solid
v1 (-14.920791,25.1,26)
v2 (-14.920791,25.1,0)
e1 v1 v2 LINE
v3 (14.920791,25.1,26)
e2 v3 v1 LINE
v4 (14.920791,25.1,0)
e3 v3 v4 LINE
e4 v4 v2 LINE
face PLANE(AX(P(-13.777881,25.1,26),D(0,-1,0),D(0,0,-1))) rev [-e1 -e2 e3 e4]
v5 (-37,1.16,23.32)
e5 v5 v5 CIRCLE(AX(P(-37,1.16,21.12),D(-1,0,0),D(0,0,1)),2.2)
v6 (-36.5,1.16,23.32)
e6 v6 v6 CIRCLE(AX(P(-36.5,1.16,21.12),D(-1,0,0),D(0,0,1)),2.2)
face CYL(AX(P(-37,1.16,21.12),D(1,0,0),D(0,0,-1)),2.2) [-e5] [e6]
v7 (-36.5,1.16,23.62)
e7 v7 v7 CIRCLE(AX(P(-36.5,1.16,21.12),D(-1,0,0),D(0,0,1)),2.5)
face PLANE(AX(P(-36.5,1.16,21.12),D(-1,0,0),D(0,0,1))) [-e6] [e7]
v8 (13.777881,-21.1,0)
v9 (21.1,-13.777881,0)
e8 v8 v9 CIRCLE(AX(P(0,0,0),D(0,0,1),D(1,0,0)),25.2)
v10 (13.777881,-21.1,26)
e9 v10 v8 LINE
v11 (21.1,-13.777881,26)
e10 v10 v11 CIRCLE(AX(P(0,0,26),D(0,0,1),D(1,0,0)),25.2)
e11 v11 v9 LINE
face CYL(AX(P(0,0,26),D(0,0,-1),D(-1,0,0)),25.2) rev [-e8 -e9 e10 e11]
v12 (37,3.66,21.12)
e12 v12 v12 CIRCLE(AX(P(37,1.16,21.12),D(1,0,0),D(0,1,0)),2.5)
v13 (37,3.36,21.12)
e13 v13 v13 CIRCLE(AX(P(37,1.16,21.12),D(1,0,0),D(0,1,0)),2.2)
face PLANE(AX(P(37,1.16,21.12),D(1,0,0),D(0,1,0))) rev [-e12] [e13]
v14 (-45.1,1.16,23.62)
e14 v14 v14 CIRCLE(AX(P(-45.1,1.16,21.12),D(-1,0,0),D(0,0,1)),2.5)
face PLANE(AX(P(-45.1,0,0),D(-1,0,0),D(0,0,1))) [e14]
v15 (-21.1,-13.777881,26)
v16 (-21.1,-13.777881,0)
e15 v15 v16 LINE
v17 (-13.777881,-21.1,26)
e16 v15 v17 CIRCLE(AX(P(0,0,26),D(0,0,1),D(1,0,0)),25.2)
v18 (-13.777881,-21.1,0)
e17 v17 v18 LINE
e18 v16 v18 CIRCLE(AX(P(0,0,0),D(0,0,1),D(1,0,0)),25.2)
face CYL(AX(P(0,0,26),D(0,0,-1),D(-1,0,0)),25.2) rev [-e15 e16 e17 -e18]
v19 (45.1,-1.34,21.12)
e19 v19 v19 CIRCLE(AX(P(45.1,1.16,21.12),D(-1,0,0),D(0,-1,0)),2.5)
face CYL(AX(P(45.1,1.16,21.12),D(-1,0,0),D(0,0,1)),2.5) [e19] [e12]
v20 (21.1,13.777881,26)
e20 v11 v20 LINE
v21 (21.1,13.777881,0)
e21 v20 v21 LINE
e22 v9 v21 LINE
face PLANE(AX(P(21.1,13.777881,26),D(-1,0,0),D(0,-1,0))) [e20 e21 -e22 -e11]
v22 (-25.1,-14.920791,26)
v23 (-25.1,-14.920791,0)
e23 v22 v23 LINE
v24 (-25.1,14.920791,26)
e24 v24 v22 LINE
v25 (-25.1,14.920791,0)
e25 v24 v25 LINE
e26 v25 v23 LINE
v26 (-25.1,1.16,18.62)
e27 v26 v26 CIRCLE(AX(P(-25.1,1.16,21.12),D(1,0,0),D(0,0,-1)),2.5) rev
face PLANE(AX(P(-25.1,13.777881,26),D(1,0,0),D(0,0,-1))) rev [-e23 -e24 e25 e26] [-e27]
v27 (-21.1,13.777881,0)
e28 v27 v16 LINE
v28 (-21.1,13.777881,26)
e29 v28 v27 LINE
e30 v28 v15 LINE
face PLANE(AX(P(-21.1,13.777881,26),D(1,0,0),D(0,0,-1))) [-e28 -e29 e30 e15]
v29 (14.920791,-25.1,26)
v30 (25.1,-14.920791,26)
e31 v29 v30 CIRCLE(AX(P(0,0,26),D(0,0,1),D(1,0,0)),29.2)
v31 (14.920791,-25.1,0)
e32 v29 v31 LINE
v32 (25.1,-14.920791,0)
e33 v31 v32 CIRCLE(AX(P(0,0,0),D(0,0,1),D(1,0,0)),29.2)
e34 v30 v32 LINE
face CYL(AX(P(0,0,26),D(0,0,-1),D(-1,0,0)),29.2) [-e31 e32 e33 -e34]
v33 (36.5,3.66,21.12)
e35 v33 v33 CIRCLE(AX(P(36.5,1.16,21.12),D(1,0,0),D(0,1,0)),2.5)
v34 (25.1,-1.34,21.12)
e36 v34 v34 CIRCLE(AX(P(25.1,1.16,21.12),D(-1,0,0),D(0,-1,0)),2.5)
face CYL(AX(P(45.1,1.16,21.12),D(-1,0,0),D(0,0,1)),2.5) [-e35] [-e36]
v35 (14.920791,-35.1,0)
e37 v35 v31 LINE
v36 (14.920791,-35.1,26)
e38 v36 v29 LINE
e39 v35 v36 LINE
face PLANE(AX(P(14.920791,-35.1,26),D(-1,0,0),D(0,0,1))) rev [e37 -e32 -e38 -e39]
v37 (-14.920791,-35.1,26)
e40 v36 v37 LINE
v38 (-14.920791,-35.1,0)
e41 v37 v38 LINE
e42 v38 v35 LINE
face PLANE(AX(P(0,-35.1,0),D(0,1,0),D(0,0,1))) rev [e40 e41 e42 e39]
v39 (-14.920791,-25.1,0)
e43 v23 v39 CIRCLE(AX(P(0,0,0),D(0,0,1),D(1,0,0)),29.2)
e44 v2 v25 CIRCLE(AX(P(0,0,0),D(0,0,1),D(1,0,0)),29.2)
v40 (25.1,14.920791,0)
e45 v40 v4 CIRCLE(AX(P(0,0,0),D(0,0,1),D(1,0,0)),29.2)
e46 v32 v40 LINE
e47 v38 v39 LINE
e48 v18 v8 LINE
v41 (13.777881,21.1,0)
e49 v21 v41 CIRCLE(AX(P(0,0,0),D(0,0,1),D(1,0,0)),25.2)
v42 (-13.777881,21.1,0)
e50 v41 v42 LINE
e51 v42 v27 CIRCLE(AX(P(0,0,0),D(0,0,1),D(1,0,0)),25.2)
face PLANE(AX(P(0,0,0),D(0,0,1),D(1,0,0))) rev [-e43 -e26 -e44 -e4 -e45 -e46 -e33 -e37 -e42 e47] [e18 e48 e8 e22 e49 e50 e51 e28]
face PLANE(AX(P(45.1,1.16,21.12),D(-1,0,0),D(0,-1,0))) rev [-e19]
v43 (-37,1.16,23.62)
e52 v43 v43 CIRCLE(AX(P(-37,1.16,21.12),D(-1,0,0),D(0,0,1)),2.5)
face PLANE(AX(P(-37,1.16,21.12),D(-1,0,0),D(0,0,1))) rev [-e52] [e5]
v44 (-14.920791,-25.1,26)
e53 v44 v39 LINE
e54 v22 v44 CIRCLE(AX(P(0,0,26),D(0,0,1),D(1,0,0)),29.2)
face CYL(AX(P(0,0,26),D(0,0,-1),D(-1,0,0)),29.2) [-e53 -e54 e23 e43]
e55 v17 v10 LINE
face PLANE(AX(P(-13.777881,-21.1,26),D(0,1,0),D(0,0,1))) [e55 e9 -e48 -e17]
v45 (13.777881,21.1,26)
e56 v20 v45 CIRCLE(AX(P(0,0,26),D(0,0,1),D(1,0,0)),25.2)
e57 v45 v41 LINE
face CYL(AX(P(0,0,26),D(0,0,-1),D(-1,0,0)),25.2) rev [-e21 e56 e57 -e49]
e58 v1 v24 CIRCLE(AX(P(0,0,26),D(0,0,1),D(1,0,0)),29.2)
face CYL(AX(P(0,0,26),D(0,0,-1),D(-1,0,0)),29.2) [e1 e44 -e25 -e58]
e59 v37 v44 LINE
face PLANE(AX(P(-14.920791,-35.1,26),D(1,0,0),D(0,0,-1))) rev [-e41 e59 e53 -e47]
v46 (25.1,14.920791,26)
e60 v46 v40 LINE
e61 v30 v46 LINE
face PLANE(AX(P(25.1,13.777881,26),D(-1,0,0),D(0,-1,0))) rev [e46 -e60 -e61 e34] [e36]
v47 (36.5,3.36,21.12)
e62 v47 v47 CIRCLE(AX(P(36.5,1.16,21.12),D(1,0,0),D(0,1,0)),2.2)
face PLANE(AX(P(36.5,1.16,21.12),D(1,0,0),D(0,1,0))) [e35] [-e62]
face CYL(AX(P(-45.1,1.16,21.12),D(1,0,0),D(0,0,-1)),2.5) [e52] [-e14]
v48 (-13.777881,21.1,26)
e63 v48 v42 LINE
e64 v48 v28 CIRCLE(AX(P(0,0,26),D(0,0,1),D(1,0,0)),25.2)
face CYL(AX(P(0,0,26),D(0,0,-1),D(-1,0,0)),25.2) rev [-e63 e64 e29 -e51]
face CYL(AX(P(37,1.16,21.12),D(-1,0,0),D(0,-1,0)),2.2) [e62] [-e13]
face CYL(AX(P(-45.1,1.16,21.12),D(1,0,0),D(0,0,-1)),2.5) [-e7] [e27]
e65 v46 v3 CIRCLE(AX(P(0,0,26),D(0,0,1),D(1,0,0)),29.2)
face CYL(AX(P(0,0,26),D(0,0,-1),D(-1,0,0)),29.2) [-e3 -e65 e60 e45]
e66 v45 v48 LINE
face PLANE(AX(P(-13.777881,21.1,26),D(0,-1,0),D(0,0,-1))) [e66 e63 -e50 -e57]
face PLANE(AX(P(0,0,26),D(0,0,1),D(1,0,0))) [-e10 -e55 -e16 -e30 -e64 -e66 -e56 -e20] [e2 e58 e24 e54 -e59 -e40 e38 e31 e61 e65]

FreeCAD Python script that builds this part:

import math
import FreeCAD as App
import Part
import Sketcher
from FreeCAD import Vector


def add_polygon(sketch, points):
    """Adds a closed chain of lines whose ends are joined by coincident constraints."""
    first, n = sketch.GeometryCount, len(points)
    for a, b in zip(points, points[1:] + points[:1]):
        sketch.addGeometry(Part.LineSegment(App.Vector(*a, 0), App.Vector(*b, 0)), False)
    for i in range(n):
        sketch.addConstraint(Sketcher.Constraint("Coincident", first + i, 2, first + (i + 1) % n, 1))

doc = App.newDocument("Part")
body = doc.addObject("PartDesign::Body", "Body")

# Sketch on XY plane
sketch1 = doc.addObject("Sketcher::SketchObject", "Sketch")
body.addObject(sketch1)
sketch1.AttachmentSupport = (doc.XY_Plane, [""])
sketch1.MapMode = "FlatFace"
sketch1.addGeometry([
    Part.LineSegment(Vector(-25, 15, 0), Vector(-25, -15, 0)),  # 0
    Part.ArcOfCircle(Part.Circle(Vector(0, 0, 0), Vector(0, 0, 1), 29), math.radians(-149), math.radians(-121)),  # 1
    Part.LineSegment(Vector(-15, -25, 0), Vector(15, -25, 0)),  # 2
    Part.ArcOfCircle(Part.Circle(Vector(0, 0, 0), Vector(0, 0, 1), 29), math.radians(-59), math.radians(-31)),  # 3
    Part.LineSegment(Vector(25, -15, 0), Vector(25, 15, 0)),  # 4
    Part.ArcOfCircle(Part.Circle(Vector(0, 0, 0), Vector(0, 0, 1), 29), math.radians(31), math.radians(59)),  # 5
    Part.LineSegment(Vector(15, 25, 0), Vector(-15, 25, 0)),  # 6
    Part.ArcOfCircle(Part.Circle(Vector(0, 0, 0), Vector(0, 0, 1), 29), math.radians(121), math.radians(149)),  # 7
    Part.LineSegment(Vector(-21, -14, 0), Vector(-21, 14, 0)),  # 8
    Part.ArcOfCircle(Part.Circle(Vector(0, 0, 0), Vector(0, 0, 1), 25), math.radians(123), math.radians(147)),  # 9
    Part.LineSegment(Vector(-14, 21, 0), Vector(14, 21, 0)),  # 10
    Part.ArcOfCircle(Part.Circle(Vector(0, 0, 0), Vector(0, 0, 1), 25), math.radians(33), math.radians(57)),  # 11
    Part.LineSegment(Vector(21, 14, 0), Vector(21, -14, 0)),  # 12
    Part.ArcOfCircle(Part.Circle(Vector(0, 0, 0), Vector(0, 0, 1), 25), math.radians(-57), math.radians(-33)),  # 13
    Part.LineSegment(Vector(14, -21, 0), Vector(-14, -21, 0)),  # 14
    Part.ArcOfCircle(Part.Circle(Vector(0, 0, 0), Vector(0, 0, 1), 25), math.radians(-147), math.radians(-123)),  # 15
], False)
sketch1.addConstraint([
    Sketcher.Constraint("Coincident", 0, 2, 1, 1),
    Sketcher.Constraint("Coincident", 1, 2, 2, 1),
    Sketcher.Constraint("Coincident", 2, 2, 3, 1),
    Sketcher.Constraint("Coincident", 3, 2, 4, 1),
    Sketcher.Constraint("Coincident", 4, 2, 5, 1),
    Sketcher.Constraint("Coincident", 5, 2, 6, 1),
    Sketcher.Constraint("Coincident", 6, 2, 7, 1),
    Sketcher.Constraint("Coincident", 7, 2, 0, 1),
    Sketcher.Constraint("Coincident", 8, 2, 9, 2),
    Sketcher.Constraint("Coincident", 9, 1, 10, 1),
    Sketcher.Constraint("Coincident", 10, 2, 11, 2),
    Sketcher.Constraint("Coincident", 11, 1, 12, 1),
    Sketcher.Constraint("Coincident", 12, 2, 13, 2),
    Sketcher.Constraint("Coincident", 13, 1, 14, 1),
    Sketcher.Constraint("Coincident", 14, 2, 15, 2),
    Sketcher.Constraint("Coincident", 15, 1, 8, 1),
    Sketcher.Constraint("Vertical", 0),
    Sketcher.Constraint("Horizontal", 2),
    Sketcher.Constraint("Vertical", 4),
    Sketcher.Constraint("Horizontal", 6),
    Sketcher.Constraint("Vertical", 8),
    Sketcher.Constraint("Horizontal", 10),
    Sketcher.Constraint("Vertical", 12),
    Sketcher.Constraint("Horizontal", 14),
    Sketcher.Constraint("Coincident", 1, 3, -1, 1),
    Sketcher.Constraint("Coincident", 3, 3, -1, 1),
    Sketcher.Constraint("Coincident", 5, 3, -1, 1),
    Sketcher.Constraint("Coincident", 7, 3, -1, 1),
    Sketcher.Constraint("Coincident", 9, 3, -1, 1),
    Sketcher.Constraint("Coincident", 11, 3, -1, 1),
    Sketcher.Constraint("Coincident", 13, 3, -1, 1),
    Sketcher.Constraint("Coincident", 15, 3, -1, 1),
    Sketcher.Constraint("Equal", 1, 3),
    Sketcher.Constraint("Equal", 3, 5),
    Sketcher.Constraint("Equal", 5, 7),
    Sketcher.Constraint("Equal", 9, 11),
    Sketcher.Constraint("Equal", 11, 13),
    Sketcher.Constraint("Equal", 13, 15),
    Sketcher.Constraint("Horizontal", 0, 2, 3, 2),
    Sketcher.Constraint("Horizontal", 8, 2, 11, 1),
    Sketcher.Constraint("Vertical", 2, 2, 5, 2),
    Sketcher.Constraint("Vertical", 10, 2, 13, 1),
    Sketcher.Constraint("Equal", 6, 0),
    Sketcher.Constraint("Equal", 14, 8),
    Sketcher.Constraint("Radius", 1, 29.2),
    Sketcher.Constraint("Radius", 9, 25.2),
    Sketcher.Constraint("DistanceX", 7, 2, 8, 2, 4.0),
    Sketcher.Constraint("DistanceX", 0, 2, -1, 1, 25.1),
])
pad1 = doc.addObject("PartDesign::Pad", "Pad")
body.addObject(pad1)
pad1.Profile = sketch1
pad1.Length = 26

# Sketch on YZ plane
sketch2 = doc.addObject("Sketcher::SketchObject", "Sketch001")
body.addObject(sketch2)
sketch2.AttachmentSupport = (doc.YZ_Plane, [""])
sketch2.MapMode = "FlatFace"
sketch2.AttachmentOffset = App.Placement(Vector(0, 0, -25.1), App.Rotation())
sketch2.addGeometry(Part.Circle(Vector(1.2, 21.1, 0), Vector(0, 0, 1), 2.5), False)
sketch2.addConstraint([
    Sketcher.Constraint("Diameter", 0, 5.0),
    Sketcher.Constraint("DistanceX", -1, 1, 0, 3, 1.16),
    Sketcher.Constraint("DistanceY", -1, 1, 0, 3, 21.12),
])
pad2 = doc.addObject("PartDesign::Pad", "Pad001")
body.addObject(pad2)
pad2.Profile = sketch2
pad2.Length = 20
pad2.Reversed = True

# Sketch on YZ plane
sketch3 = doc.addObject("Sketcher::SketchObject", "Sketch002")
body.addObject(sketch3)
sketch3.AttachmentSupport = (doc.YZ_Plane, [""])
sketch3.MapMode = "FlatFace"
sketch3.AttachmentOffset = App.Placement(Vector(0, 0, 25.1), App.Rotation())
sketch3.addGeometry(Part.Circle(Vector(1.2, 21.1, 0), Vector(0, 0, 1), 2.5), False)
sketch3.addConstraint([
    Sketcher.Constraint("Diameter", 0, 5.0),
    Sketcher.Constraint("DistanceX", -1, 1, 0, 3, 1.16),
    Sketcher.Constraint("DistanceY", -1, 1, 0, 3, 21.12),
])
pad3 = doc.addObject("PartDesign::Pad", "Pad002")
body.addObject(pad3)
pad3.Profile = sketch3
pad3.Length = 20

# Sketch on XZ plane
sketch4 = doc.addObject("Sketcher::SketchObject", "Sketch003")
body.addObject(sketch4)
sketch4.AttachmentSupport = (doc.XZ_Plane, [""])
sketch4.MapMode = "FlatFace"
sketch4.AttachmentOffset = App.Placement(Vector(0, 0, 25.1), App.Rotation())
add_polygon(sketch4, [(-15, 26), (-15, 0), (15, 0), (15, 26)])  # lines 0-3
sketch4.addConstraint([
    Sketcher.Constraint("Vertical", 0),
    Sketcher.Constraint("Horizontal", 1),
    Sketcher.Constraint("Vertical", 2),
    Sketcher.Constraint("Horizontal", 3),
    Sketcher.Constraint("Symmetric", 0, 2, 1, 2, -1, 1),
    Sketcher.Constraint("DistanceY", 0, 2, 0, 1, 26.0),
    Sketcher.Constraint("DistanceX", 1, 1, 1, 2, 29.841582),
])
pad4 = doc.addObject("PartDesign::Pad", "Pad003")
body.addObject(pad4)
pad4.Profile = sketch4
pad4.Length = 10

# Sketch on YZ plane
sketch5 = doc.addObject("Sketcher::SketchObject", "Sketch004")
body.addObject(sketch5)
sketch5.AttachmentSupport = (doc.YZ_Plane, [""])
sketch5.MapMode = "FlatFace"
sketch5.AttachmentOffset = App.Placement(Vector(0, 0, 36.5), App.Rotation())
sketch5.addGeometry([
    Part.Circle(Vector(1.2, 21.1, 0), Vector(0, 0, 1), 2.5),
    Part.Circle(Vector(1.2, 21.1, 0), Vector(0, 0, 1), 2.2),
], False)
sketch5.addConstraint([
    Sketcher.Constraint("Coincident", 1, 3, 0, 3),
    Sketcher.Constraint("Diameter", 0, 5.0),
    Sketcher.Constraint("Diameter", 1, 4.4),
    Sketcher.Constraint("DistanceX", -1, 1, 0, 3, 1.16),
    Sketcher.Constraint("DistanceY", -1, 1, 0, 3, 21.12),
])
pocket1 = doc.addObject("PartDesign::Pocket", "Pocket")
body.addObject(pocket1)
pocket1.Profile = sketch5
pocket1.Length = 0.5
pocket1.Reversed = True

# Sketch on YZ plane
sketch6 = doc.addObject("Sketcher::SketchObject", "Sketch005")
body.addObject(sketch6)
sketch6.AttachmentSupport = (doc.YZ_Plane, [""])
sketch6.MapMode = "FlatFace"
sketch6.AttachmentOffset = App.Placement(Vector(0, 0, -36.5), App.Rotation())
sketch6.addGeometry([
    Part.Circle(Vector(1.2, 21.1, 0), Vector(0, 0, 1), 2.5),
    Part.Circle(Vector(1.2, 21.1, 0), Vector(0, 0, 1), 2.2),
], False)
sketch6.addConstraint([
    Sketcher.Constraint("Coincident", 1, 3, 0, 3),
    Sketcher.Constraint("Diameter", 0, 5.0),
    Sketcher.Constraint("Diameter", 1, 4.4),
    Sketcher.Constraint("DistanceX", -1, 1, 0, 3, 1.16),
    Sketcher.Constraint("DistanceY", -1, 1, 0, 3, 21.12),
])
pocket2 = doc.addObject("PartDesign::Pocket", "Pocket001")
body.addObject(pocket2)
pocket2.Profile = sketch6
pocket2.Length = 0.5

doc.recompute()
